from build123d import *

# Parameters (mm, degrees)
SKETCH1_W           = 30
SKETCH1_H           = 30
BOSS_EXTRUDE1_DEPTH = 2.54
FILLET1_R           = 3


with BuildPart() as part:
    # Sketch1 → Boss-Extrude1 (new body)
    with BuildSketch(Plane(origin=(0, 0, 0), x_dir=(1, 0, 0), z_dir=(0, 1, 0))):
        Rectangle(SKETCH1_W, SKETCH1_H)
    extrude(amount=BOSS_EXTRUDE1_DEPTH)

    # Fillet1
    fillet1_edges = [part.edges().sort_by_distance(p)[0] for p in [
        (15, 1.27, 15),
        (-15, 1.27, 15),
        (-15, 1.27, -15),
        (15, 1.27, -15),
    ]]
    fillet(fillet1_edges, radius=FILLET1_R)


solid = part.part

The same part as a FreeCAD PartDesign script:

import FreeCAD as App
import Part
import Sketcher
from FreeCAD import Vector
Q = App.Units.Quantity


def edges_at(feature, points):
    """Names of the edges that pass closest to the given points."""
    edges = feature.Shape.Edges
    near = lambda p: min(range(len(edges)), key=lambda i: edges[i].distToShape(Part.Vertex(*p))[0])
    return sorted({f"Edge{near(p) + 1}" for p in points})


def add_polygon(sketch, points):
    """Adds a closed chain of lines whose ends are joined by coincident constraints."""
    first, n = sketch.GeometryCount, len(points)
    for a, b in zip(points, points[1:] + points[:1]):
        sketch.addGeometry(Part.LineSegment(App.Vector(*a, 0), App.Vector(*b, 0)), False)
    for i in range(n):
        sketch.addConstraint(Sketcher.Constraint("Coincident", first + i, 2, first + (i + 1) % n, 1))

doc = App.newDocument("Part")
body = doc.addObject("PartDesign::Body", "Body")

sketch1 = body.newObject("Sketcher::SketchObject", "Sketch")
sketch1.AttachmentSupport = (doc.getObject("XZ_Plane"), [""])
sketch1.MapMode = "FlatFace"
add_polygon(sketch1, [(-15, -15), (-15, 15), (15, 15), (15, -15)])
sketch1.addConstraint(Sketcher.Constraint("Vertical", 0))
sketch1.addConstraint(Sketcher.Constraint("Horizontal", 1))
sketch1.addConstraint(Sketcher.Constraint("Vertical", 2))
sketch1.addConstraint(Sketcher.Constraint("Horizontal", 3))
sketch1.addConstraint(Sketcher.Constraint("Symmetric", 0, 2, 2, 2, -1, 1))
sketch1.addConstraint(Sketcher.Constraint("Equal", 3, 0))
sketch1.addConstraint(Sketcher.Constraint("DistanceX", 1, 1, 1, 2, Q("30 mm")))
pad1 = body.newObject("PartDesign::Pad", "Pad")
pad1.Profile = sketch1
pad1.Length = 2.54
pad1.Reversed = True
doc.recompute()

fillet = body.newObject("PartDesign::Fillet", "Fillet")
fillet.Base = (pad1, edges_at(pad1, [
    (15, 1.27, 15),
    (-15, 1.27, 15),
    (-15, 1.27, -15),
    (15, 1.27, -15),
]))
fillet.Radius = 3

doc.recompute()
